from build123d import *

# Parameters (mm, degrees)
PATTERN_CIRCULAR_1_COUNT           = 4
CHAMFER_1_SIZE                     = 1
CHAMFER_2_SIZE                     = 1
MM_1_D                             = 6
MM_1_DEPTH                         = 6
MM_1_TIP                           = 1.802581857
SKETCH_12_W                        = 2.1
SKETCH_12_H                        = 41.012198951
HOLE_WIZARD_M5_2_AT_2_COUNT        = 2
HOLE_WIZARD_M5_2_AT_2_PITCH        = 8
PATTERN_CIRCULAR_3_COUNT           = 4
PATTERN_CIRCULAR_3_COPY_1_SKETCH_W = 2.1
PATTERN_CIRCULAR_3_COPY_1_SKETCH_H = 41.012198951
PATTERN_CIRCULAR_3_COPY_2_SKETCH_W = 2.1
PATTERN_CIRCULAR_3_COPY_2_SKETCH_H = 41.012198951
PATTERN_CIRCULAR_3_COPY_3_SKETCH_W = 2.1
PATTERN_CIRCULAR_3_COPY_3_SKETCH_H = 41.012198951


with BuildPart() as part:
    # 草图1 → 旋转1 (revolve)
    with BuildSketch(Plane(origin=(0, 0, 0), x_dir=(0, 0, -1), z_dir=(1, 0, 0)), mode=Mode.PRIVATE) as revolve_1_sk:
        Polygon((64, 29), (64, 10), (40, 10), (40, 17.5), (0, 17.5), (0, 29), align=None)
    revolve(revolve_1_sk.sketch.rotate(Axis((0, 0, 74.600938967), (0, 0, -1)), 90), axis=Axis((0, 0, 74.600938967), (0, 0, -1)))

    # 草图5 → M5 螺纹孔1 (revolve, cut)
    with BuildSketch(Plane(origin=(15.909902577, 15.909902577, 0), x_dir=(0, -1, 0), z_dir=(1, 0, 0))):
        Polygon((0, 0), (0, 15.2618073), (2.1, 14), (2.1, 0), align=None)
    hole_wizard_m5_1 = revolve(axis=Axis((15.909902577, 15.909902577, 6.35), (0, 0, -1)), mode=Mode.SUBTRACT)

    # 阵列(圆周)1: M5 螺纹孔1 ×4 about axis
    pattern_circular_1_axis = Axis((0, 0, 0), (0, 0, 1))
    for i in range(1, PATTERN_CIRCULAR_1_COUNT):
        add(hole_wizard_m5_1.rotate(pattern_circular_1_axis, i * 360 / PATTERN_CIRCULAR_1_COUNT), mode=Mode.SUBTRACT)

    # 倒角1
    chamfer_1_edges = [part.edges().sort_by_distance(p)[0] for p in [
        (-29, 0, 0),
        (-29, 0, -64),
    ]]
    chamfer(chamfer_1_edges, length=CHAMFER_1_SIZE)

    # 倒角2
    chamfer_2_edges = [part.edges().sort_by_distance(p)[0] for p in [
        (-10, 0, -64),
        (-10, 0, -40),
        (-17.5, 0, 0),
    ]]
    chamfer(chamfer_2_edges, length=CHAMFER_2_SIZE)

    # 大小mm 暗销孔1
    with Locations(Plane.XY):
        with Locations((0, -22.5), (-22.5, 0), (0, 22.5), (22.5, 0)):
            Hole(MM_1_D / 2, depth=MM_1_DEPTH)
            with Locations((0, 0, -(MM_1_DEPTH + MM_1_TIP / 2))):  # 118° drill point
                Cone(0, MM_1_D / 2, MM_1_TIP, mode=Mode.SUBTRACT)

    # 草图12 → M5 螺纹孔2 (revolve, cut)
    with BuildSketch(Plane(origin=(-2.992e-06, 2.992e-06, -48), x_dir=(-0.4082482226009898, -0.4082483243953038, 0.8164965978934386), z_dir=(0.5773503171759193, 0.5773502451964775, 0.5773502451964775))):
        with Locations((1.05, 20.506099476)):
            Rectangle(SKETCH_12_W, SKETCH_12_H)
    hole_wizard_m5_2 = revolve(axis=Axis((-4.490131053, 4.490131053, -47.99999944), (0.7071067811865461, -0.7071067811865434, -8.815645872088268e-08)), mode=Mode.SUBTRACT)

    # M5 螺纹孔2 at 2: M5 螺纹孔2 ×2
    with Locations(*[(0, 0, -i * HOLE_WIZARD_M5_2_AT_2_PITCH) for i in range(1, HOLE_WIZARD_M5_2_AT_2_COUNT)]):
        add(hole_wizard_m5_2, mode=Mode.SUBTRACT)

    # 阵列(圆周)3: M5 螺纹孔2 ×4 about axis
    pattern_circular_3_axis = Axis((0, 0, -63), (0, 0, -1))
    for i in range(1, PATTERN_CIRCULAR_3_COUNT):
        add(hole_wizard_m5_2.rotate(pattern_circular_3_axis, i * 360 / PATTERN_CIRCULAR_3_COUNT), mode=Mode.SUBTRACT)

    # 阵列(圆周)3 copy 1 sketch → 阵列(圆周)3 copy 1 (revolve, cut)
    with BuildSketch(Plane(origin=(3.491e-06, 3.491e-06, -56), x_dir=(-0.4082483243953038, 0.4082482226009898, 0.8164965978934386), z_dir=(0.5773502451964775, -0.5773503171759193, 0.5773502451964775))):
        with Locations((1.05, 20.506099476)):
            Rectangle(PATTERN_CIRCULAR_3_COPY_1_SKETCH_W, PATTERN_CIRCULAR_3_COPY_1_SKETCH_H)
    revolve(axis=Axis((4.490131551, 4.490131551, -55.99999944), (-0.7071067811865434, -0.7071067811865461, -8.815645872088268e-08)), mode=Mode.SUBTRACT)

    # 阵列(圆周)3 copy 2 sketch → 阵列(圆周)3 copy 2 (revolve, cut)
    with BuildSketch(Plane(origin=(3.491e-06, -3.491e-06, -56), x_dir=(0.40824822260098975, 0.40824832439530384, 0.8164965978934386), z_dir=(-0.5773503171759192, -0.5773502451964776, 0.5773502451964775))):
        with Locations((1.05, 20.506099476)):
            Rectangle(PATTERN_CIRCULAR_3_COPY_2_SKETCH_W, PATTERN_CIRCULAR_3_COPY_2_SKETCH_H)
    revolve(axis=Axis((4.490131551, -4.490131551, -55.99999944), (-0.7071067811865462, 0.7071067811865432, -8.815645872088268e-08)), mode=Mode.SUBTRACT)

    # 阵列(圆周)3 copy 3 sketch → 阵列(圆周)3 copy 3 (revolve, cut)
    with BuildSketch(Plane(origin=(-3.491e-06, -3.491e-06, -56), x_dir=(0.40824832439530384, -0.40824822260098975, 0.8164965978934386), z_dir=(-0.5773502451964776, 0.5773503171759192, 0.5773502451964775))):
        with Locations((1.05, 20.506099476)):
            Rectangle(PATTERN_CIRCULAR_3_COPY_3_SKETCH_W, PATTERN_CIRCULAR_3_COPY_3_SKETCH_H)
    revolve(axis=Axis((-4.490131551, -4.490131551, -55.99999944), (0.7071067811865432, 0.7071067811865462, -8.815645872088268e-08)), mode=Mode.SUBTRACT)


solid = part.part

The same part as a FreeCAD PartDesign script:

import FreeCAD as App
import Part
import Sketcher

V = App.Vector
Q = App.Units.Quantity


def edges_at(feature, points):
    """Names of the edges that pass closest to the given points."""
    edges = feature.Shape.Edges
    near = lambda p: min(range(len(edges)), key=lambda i: edges[i].distToShape(Part.Vertex(*p))[0])
    return sorted({f"Edge{near(p) + 1}" for p in points})

doc = App.newDocument("Part")
body = doc.addObject("PartDesign::Body", "Body")

# Sketch on YZ plane
sketch1 = body.newObject("Sketcher::SketchObject", "Sketch")
sketch1.AttachmentSupport = (doc.getObject("YZ_Plane"), [""])
sketch1.MapMode = "FlatFace"
sketch1.addGeometry([
    Part.LineSegment(V(10, -64, 0), V(29, -64, 0)),  # 0
    Part.LineSegment(V(29, -64, 0), V(29, 0, 0)),  # 1
    Part.LineSegment(V(29, 0, 0), V(18, 0, 0)),  # 2
    Part.LineSegment(V(18, 0, 0), V(18, -40, 0)),  # 3
    Part.LineSegment(V(18, -40, 0), V(10, -40, 0)),  # 4
    Part.LineSegment(V(10, -40, 0), V(10, -64, 0)),  # 5
], False)
sketch1.addConstraint([
    Sketcher.Constraint("Coincident", 0, 2, 1, 1),
    Sketcher.Constraint("Coincident", 1, 2, 2, 1),
    Sketcher.Constraint("Coincident", 2, 2, 3, 1),
    Sketcher.Constraint("Coincident", 3, 2, 4, 1),
    Sketcher.Constraint("Coincident", 4, 2, 5, 1),
    Sketcher.Constraint("Coincident", 5, 2, 0, 1),
    Sketcher.Constraint("Horizontal", 0),
    Sketcher.Constraint("Vertical", 1),
    Sketcher.Constraint("Horizontal", 2),
    Sketcher.Constraint("Vertical", 3),
    Sketcher.Constraint("Horizontal", 4),
    Sketcher.Constraint("Vertical", 5),
    Sketcher.Constraint("PointOnObject", 1, 2, -1),
    Sketcher.Constraint("DistanceX", 0, 1, 0, 2, 19.0),
    Sketcher.Constraint("DistanceY", 1, 1, 1, 2, 64.0),
    Sketcher.Constraint("DistanceY", 3, 2, 3, 1, 40.0),
    Sketcher.Constraint("DistanceX", 2, 2, 2, 1, 11.5),
    Sketcher.Constraint("DistanceX", -1, 1, 0, 2, 29.0),
])
revolution = body.newObject("PartDesign::Revolution", "Revolution")
revolution.Profile = sketch1
revolution.ReferenceAxis = (sketch1, ["V_Axis"])
revolution.Angle = 360

# Sketch on YZ plane
sketch2 = body.newObject("Sketcher::SketchObject", "Sketch001")
sketch2.AttachmentSupport = (doc.getObject("YZ_Plane"), [""])
sketch2.MapMode = "FlatFace"
sketch2.AttachmentOffset = App.Placement(V(0, 0, 15.909903), App.Rotation())
sketch2.addGeometry([
    Part.LineSegment(V(15.9, -15.3, 0), V(15.9, 0, 0)),
    Part.LineSegment(V(15.9, 0, 0), V(13.8, 0, 0)),
    Part.LineSegment(V(13.8, 0, 0), V(13.8, -14, 0)),
    Part.LineSegment(V(13.8, -14, 0), V(15.9, -15.3, 0)),
], False)
sketch2.addGeometry(Part.LineSegment(V(15.9, 0, 0), V(15.9, -15.3, 0)), True)  # axis
sketch2.addConstraint([
    Sketcher.Constraint("Coincident", 0, 2, 1, 1),
    Sketcher.Constraint("Coincident", 1, 2, 2, 1),
    Sketcher.Constraint("Coincident", 2, 2, 3, 1),
    Sketcher.Constraint("Coincident", 3, 2, 0, 1),
    Sketcher.Constraint("Vertical", 0),
    Sketcher.Constraint("Horizontal", 1),
    Sketcher.Constraint("Vertical", 2),
    Sketcher.Constraint("Vertical", 4),
    Sketcher.Constraint("Coincident", 4, 1, 0, 2),
    Sketcher.Constraint("PointOnObject", 0, 2, -1),
    Sketcher.Constraint("Equal", 0, 4),
    Sketcher.Constraint("DistanceY", 2, 2, 2, 1, 14.0),
    Sketcher.Constraint("Angle", 3, Q("-31 deg")),
    Sketcher.Constraint("DistanceX", 1, 2, 1, 1, 2.1),
    Sketcher.Constraint("DistanceX", -1, 1, 0, 2, 15.909903),
])
groove = body.newObject("PartDesign::Groove", "Groove")
groove.Profile = sketch2
groove.ReferenceAxis = (sketch2, ["Axis0"])
groove.Angle = 360
doc.recompute()

polarpattern = body.newObject("PartDesign::PolarPattern", "PolarPattern")
polarpattern.Originals = [groove]
polarpattern.Axis = (doc.getObject("Z_Axis"), [""])
polarpattern.Angle = 360
polarpattern.Occurrences = 4
body.Tip = polarpattern
doc.recompute()

chamfer = body.newObject("PartDesign::Chamfer", "Chamfer")
chamfer.Base = (polarpattern, edges_at(polarpattern, [(-29, 0, 0), (-29, 0, -64)]))
chamfer.Size = 1
doc.recompute()

chamfer2 = body.newObject("PartDesign::Chamfer", "Chamfer001")
chamfer2.Base = (chamfer, edges_at(chamfer, [(-10, 0, -64), (-10, 0, -40), (-17.5, 0, 0)]))
chamfer2.Size = 1

# Sketch on XY plane
sketch3 = body.newObject("Sketcher::SketchObject", "Sketch002")
sketch3.AttachmentSupport = (doc.getObject("XY_Plane"), [""])
sketch3.MapMode = "FlatFace"
sketch3.addGeometry([
    Part.Circle(V(0, -22.5, 0), V(0, 0, 1), 3),
    Part.Circle(V(-22.5, 0, 0), V(0, 0, 1), 3),
    Part.Circle(V(0, 22.5, 0), V(0, 0, 1), 3),
    Part.Circle(V(22.5, 0, 0), V(0, 0, 1), 3),
], False)
sketch3.addConstraint([
    Sketcher.Constraint("Equal", 0, 1),
    Sketcher.Constraint("Equal", 1, 2),
    Sketcher.Constraint("Equal", 2, 3),
    Sketcher.Constraint("Symmetric", 0, 3, 2, 3, -1, 1),
    Sketcher.Constraint("Symmetric", 1, 3, 3, 3, -1, 1),
    Sketcher.Constraint("PointOnObject", 0, 3, -2),
    Sketcher.Constraint("PointOnObject", 1, 3, -1),
    Sketcher.Constraint("Diameter", 0, 6.0),
    Sketcher.Constraint("DistanceY", 0, 3, 2, 3, 45.0),
    Sketcher.Constraint("DistanceX", 1, 3, 3, 3, 45.0),
])
doc.recompute()
hole = body.newObject("PartDesign::Hole", "Hole")
hole.Profile = sketch3
hole.ThreadType = "None"
hole.Diameter = 6
hole.DepthType = "Dimension"
hole.Depth = 6
hole.DrillPoint = "Angled"
hole.DrillPointAngle = 118

# Sketch on an angled plane
sketch4 = body.newObject("Sketcher::SketchObject", "Sketch003")
sketch4.Placement = App.Placement(V(-0.000003, 0.000003, -48), App.Rotation(V(-0.408248223, -0.408248324, 0.816496598), V(0.707106781, -0.707106781, -0.000000088), V(0.577350317, 0.577350245, 0.577350245), "ZXY"))
sketch4.addGeometry([
    Part.LineSegment(V(0, 41, 0), V(0, 0, 0)),
    Part.LineSegment(V(0, 0, 0), V(2.1, 0, 0)),
    Part.LineSegment(V(2.1, 0, 0), V(2.1, 41, 0)),
    Part.LineSegment(V(2.1, 41, 0), V(0, 41, 0)),
], False)
sketch4.addConstraint([
    Sketcher.Constraint("Coincident", 0, 2, 1, 1),
    Sketcher.Constraint("Coincident", 1, 2, 2, 1),
    Sketcher.Constraint("Coincident", 2, 2, 3, 1),
    Sketcher.Constraint("Coincident", 3, 2, 0, 1),
    Sketcher.Constraint("Vertical", 0),
    Sketcher.Constraint("Horizontal", 1),
    Sketcher.Constraint("Vertical", 2),
    Sketcher.Constraint("Horizontal", 3),
    Sketcher.Constraint("Coincident", 0, 2, -1, 1),
    Sketcher.Constraint("DistanceX", 1, 1, 1, 2, 2.1),
    Sketcher.Constraint("DistanceY", 0, 2, 0, 1, 41.012199),
])
groove2 = body.newObject("PartDesign::Groove", "Groove001")
groove2.Profile = sketch4
groove2.ReferenceAxis = (sketch4, ["V_Axis"])
groove2.Angle = 360
doc.recompute()

linearpattern = body.newObject("PartDesign::LinearPattern", "LinearPattern")
linearpattern.Originals = [groove2]
linearpattern.Direction = (doc.getObject("Z_Axis"), [""])
linearpattern.Mode = "offset"
linearpattern.Offset = 8
linearpattern.Occurrences = 2
linearpattern.Reversed = True
body.Tip = linearpattern
doc.recompute()

polarpattern2 = body.newObject("PartDesign::PolarPattern", "PolarPattern001")
polarpattern2.Originals = [groove2]
polarpattern2.Axis = (doc.getObject("Z_Axis"), [""])
polarpattern2.Angle = 360
polarpattern2.Occurrences = 4
body.Tip = polarpattern2

# Sketch on an angled plane
sketch5 = body.newObject("Sketcher::SketchObject", "Sketch004")
sketch5.Placement = App.Placement(V(0.000003, 0.000003, -56), App.Rotation(V(-0.408248324, 0.408248223, 0.816496598), V(-0.707106781, -0.707106781, -0.000000088), V(0.577350245, -0.577350317, 0.577350245), "ZXY"))
sketch5.addGeometry([
    Part.LineSegment(V(0, 41, 0), V(0, 0, 0)),
    Part.LineSegment(V(0, 0, 0), V(2.1, 0, 0)),
    Part.LineSegment(V(2.1, 0, 0), V(2.1, 41, 0)),
    Part.LineSegment(V(2.1, 41, 0), V(0, 41, 0)),
], False)
sketch5.addConstraint([
    Sketcher.Constraint("Coincident", 0, 2, 1, 1),
    Sketcher.Constraint("Coincident", 1, 2, 2, 1),
    Sketcher.Constraint("Coincident", 2, 2, 3, 1),
    Sketcher.Constraint("Coincident", 3, 2, 0, 1),
    Sketcher.Constraint("Vertical", 0),
    Sketcher.Constraint("Horizontal", 1),
    Sketcher.Constraint("Vertical", 2),
    Sketcher.Constraint("Horizontal", 3),
    Sketcher.Constraint("Coincident", 0, 2, -1, 1),
    Sketcher.Constraint("DistanceX", 1, 1, 1, 2, 2.1),
    Sketcher.Constraint("DistanceY", 0, 2, 0, 1, 41.012199),
])
groove3 = body.newObject("PartDesign::Groove", "Groove002")
groove3.Profile = sketch5
groove3.ReferenceAxis = (sketch5, ["V_Axis"])
groove3.Angle = 360

# Sketch on an angled plane
sketch6 = body.newObject("Sketcher::SketchObject", "Sketch005")
sketch6.Placement = App.Placement(V(0.000003, -0.000003, -56), App.Rotation(V(0.408248223, 0.408248324, 0.816496598), V(-0.707106781, 0.707106781, -0.000000088), V(-0.577350317, -0.577350245, 0.577350245), "ZXY"))
sketch6.addGeometry([
    Part.LineSegment(V(0, 41, 0), V(0, 0, 0)),
    Part.LineSegment(V(0, 0, 0), V(2.1, 0, 0)),
    Part.LineSegment(V(2.1, 0, 0), V(2.1, 41, 0)),
    Part.LineSegment(V(2.1, 41, 0), V(0, 41, 0)),
], False)
sketch6.addConstraint([
    Sketcher.Constraint("Coincident", 0, 2, 1, 1),
    Sketcher.Constraint("Coincident", 1, 2, 2, 1),
    Sketcher.Constraint("Coincident", 2, 2, 3, 1),
    Sketcher.Constraint("Coincident", 3, 2, 0, 1),
    Sketcher.Constraint("Vertical", 0),
    Sketcher.Constraint("Horizontal", 1),
    Sketcher.Constraint("Vertical", 2),
    Sketcher.Constraint("Horizontal", 3),
    Sketcher.Constraint("Coincident", 0, 2, -1, 1),
    Sketcher.Constraint("DistanceX", 1, 1, 1, 2, 2.1),
    Sketcher.Constraint("DistanceY", 0, 2, 0, 1, 41.012199),
])
groove4 = body.newObject("PartDesign::Groove", "Groove003")
groove4.Profile = sketch6
groove4.ReferenceAxis = (sketch6, ["V_Axis"])
groove4.Angle = 360

# Sketch on an angled plane
sketch7 = body.newObject("Sketcher::SketchObject", "Sketch006")
sketch7.Placement = App.Placement(V(-0.000003, -0.000003, -56), App.Rotation(V(0.408248324, -0.408248223, 0.816496598), V(0.707106781, 0.707106781, -0.000000088), V(-0.577350245, 0.577350317, 0.577350245), "ZXY"))
sketch7.addGeometry([
    Part.LineSegment(V(0, 41, 0), V(0, 0, 0)),
    Part.LineSegment(V(0, 0, 0), V(2.1, 0, 0)),
    Part.LineSegment(V(2.1, 0, 0), V(2.1, 41, 0)),
    Part.LineSegment(V(2.1, 41, 0), V(0, 41, 0)),
], False)
sketch7.addConstraint([
    Sketcher.Constraint("Coincident", 0, 2, 1, 1),
    Sketcher.Constraint("Coincident", 1, 2, 2, 1),
    Sketcher.Constraint("Coincident", 2, 2, 3, 1),
    Sketcher.Constraint("Coincident", 3, 2, 0, 1),
    Sketcher.Constraint("Vertical", 0),
    Sketcher.Constraint("Horizontal", 1),
    Sketcher.Constraint("Vertical", 2),
    Sketcher.Constraint("Horizontal", 3),
    Sketcher.Constraint("Coincident", 0, 2, -1, 1),
    Sketcher.Constraint("DistanceX", 1, 1, 1, 2, 2.1),
    Sketcher.Constraint("DistanceY", 0, 2, 0, 1, 41.012199),
])
groove5 = body.newObject("PartDesign::Groove", "Groove004")
groove5.Profile = sketch7
groove5.ReferenceAxis = (sketch7, ["V_Axis"])
groove5.Angle = 360

doc.recompute()
